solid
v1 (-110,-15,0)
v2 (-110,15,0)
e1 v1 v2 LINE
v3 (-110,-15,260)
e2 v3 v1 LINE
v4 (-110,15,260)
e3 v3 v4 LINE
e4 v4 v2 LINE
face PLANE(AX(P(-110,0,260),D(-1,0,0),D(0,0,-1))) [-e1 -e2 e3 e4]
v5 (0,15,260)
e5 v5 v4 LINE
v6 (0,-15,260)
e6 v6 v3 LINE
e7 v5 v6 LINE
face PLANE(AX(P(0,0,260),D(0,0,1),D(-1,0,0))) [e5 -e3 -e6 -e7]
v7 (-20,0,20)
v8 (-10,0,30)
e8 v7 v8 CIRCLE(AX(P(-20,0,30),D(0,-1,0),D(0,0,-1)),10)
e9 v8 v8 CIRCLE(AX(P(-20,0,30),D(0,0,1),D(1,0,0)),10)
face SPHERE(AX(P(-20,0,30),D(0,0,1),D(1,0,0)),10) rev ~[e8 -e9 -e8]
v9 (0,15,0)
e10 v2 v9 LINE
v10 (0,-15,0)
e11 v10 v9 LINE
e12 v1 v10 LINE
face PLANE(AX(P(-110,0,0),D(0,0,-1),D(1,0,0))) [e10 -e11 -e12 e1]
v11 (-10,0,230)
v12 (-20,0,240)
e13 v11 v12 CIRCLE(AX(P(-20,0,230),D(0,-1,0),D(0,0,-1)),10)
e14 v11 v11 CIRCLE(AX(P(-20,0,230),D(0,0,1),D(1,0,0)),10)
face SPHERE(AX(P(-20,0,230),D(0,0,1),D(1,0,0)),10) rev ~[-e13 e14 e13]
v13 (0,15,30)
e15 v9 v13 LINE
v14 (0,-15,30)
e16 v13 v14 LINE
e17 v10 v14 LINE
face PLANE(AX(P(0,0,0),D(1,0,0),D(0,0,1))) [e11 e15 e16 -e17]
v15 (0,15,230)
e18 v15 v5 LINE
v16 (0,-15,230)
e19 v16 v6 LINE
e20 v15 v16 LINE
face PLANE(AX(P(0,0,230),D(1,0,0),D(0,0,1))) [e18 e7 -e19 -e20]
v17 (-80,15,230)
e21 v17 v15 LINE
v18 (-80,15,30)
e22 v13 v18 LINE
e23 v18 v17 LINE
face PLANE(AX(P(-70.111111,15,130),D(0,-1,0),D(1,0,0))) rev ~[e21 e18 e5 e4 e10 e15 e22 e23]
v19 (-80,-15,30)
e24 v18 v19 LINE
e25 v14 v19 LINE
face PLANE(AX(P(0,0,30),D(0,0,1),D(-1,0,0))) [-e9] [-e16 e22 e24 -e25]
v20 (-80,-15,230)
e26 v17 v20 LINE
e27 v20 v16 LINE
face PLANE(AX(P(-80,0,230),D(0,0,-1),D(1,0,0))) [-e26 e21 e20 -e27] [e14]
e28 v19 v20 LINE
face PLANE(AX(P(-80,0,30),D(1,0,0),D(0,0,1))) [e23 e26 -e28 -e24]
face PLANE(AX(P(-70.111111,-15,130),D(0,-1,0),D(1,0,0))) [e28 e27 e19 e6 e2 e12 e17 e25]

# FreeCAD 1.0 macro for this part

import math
import FreeCAD as App
import Part
import Sketcher
from FreeCAD import Vector
Q = App.Units.Quantity


def add_polygon(sketch, points):
    """Adds a closed chain of lines whose ends are joined by coincident constraints."""
    first, n = sketch.GeometryCount, len(points)
    for a, b in zip(points, points[1:] + points[:1]):
        sketch.addGeometry(Part.LineSegment(App.Vector(*a, 0), App.Vector(*b, 0)), False)
    for i in range(n):
        sketch.addConstraint(Sketcher.Constraint("Coincident", first + i, 2, first + (i + 1) % n, 1))

doc = App.newDocument("Part")
params = doc.addObject("Spreadsheet::Sheet", "Params")
for row, (alias, value) in enumerate([
    ("sketch1_width", "80 mm"),
    ("sketch1_width2", "110 mm"),
    ("sketch1_height", "30 mm"),
    ("sketch1_height2", "200 mm"),
    ("pad1_length", "30 mm"),
    ("sketch2_radius", "10 mm"),
    ("sketch2_height", "220 mm"),
    ("groove_angle", "360 deg"),
], start=1):
    params.set(f"A{row}", alias)
    params.set(f"B{row}", "=" + value)
    params.setAlias(f"B{row}", alias)

body = doc.addObject("PartDesign::Body", "Body")

# Sketch on XZ plane
sketch1 = body.newObject("Sketcher::SketchObject", "Sketch")
sketch1.AttachmentSupport = (doc.getObject("XZ_Plane"), [""])
sketch1.MapMode = "FlatFace"
add_polygon(sketch1, [(0, 0), (0, 30), (-80, 30), (-80, 230), (0, 230), (0, 260), (-110, 260), (-110, 0)])  # lines 0-7
sketch1.addConstraint(Sketcher.Constraint("Vertical", 0))
sketch1.addConstraint(Sketcher.Constraint("Horizontal", 1))
sketch1.addConstraint(Sketcher.Constraint("Vertical", 2))
sketch1.addConstraint(Sketcher.Constraint("Horizontal", 3))
sketch1.addConstraint(Sketcher.Constraint("Vertical", 4))
sketch1.addConstraint(Sketcher.Constraint("Horizontal", 5))
sketch1.addConstraint(Sketcher.Constraint("Vertical", 6))
sketch1.addConstraint(Sketcher.Constraint("Horizontal", 7))
sketch1.addConstraint(Sketcher.Constraint("Coincident", 7, 2, -1, 1))
sketch1.addConstraint(Sketcher.Constraint("PointOnObject", 3, 2, -2))
sketch1.addConstraint(Sketcher.Constraint("Equal", 0, 4))
sketch1.addConstraint(Sketcher.Constraint("DistanceX", 1, 2, 1, 1, Q("80 mm")))
sketch1.addConstraint(Sketcher.Constraint("DistanceX", 5, 2, 5, 1, Q("110 mm")))
sketch1.addConstraint(Sketcher.Constraint("DistanceY", 0, 1, 0, 2, Q("30 mm")))
sketch1.addConstraint(Sketcher.Constraint("DistanceY", 2, 1, 2, 2, Q("200 mm")))
sketch1.setExpression("Constraints[19]", "Params.sketch1_width")
sketch1.setExpression("Constraints[20]", "Params.sketch1_width2")
sketch1.setExpression("Constraints[21]", "Params.sketch1_height")
sketch1.setExpression("Constraints[22]", "Params.sketch1_height2")
pad1 = body.newObject("PartDesign::Pad", "Pad")
pad1.Profile = sketch1
pad1.setExpression("Length", "Params.pad1_length")
pad1.Midplane = True

# Sketch on XZ plane
sketch2 = body.newObject("Sketcher::SketchObject", "Sketch001")
sketch2.AttachmentSupport = (doc.getObject("XZ_Plane"), [""])
sketch2.MapMode = "FlatFace"
sketch2.addGeometry(Part.LineSegment(Vector(-20, 40, 0), Vector(-20, 20, 0)), False)
sketch2.addGeometry(Part.ArcOfCircle(Part.Circle(Vector(-20, 30, 0), Vector(0, 0, 1), 10), math.radians(-90), math.radians(90)), False)
sketch2.addGeometry(Part.LineSegment(Vector(-20, 240, 0), Vector(-20, 220, 0)), False)
sketch2.addGeometry(Part.ArcOfCircle(Part.Circle(Vector(-20, 230, 0), Vector(0, 0, 1), 10), math.radians(-90), math.radians(90)), False)
sketch2.addGeometry(Part.LineSegment(Vector(-20, 20, 0), Vector(-20, 240, 0)), True)  # axis
sketch2.addConstraint(Sketcher.Constraint("Coincident", 0, 1, 1, 2))
sketch2.addConstraint(Sketcher.Constraint("Coincident", 1, 1, 0, 2))
sketch2.addConstraint(Sketcher.Constraint("Coincident", 2, 1, 3, 2))
sketch2.addConstraint(Sketcher.Constraint("Coincident", 3, 1, 2, 2))
sketch2.addConstraint(Sketcher.Constraint("Vertical", 0))
sketch2.addConstraint(Sketcher.Constraint("Vertical", 2))
sketch2.addConstraint(Sketcher.Constraint("Vertical", 4))
sketch2.addConstraint(Sketcher.Constraint("Coincident", 4, 1, 1, 1))
sketch2.addConstraint(Sketcher.Constraint("Coincident", 4, 2, 2, 1))
sketch2.addConstraint(Sketcher.Constraint("Equal", 1, 3))
sketch2.addConstraint(Sketcher.Constraint("Vertical", 1, 3, 3, 3))
sketch2.addConstraint(Sketcher.Constraint("Vertical", 3, 3, 0, 1))
sketch2.addConstraint(Sketcher.Constraint("Radius", 1, Q("10 mm")))
sketch2.addConstraint(Sketcher.Constraint("DistanceY", 4, 1, 4, 2, Q("220 mm")))
sketch2.addConstraint(Sketcher.Constraint("DistanceX", 1, 3, -1, 1, Q("20 mm")))
sketch2.addConstraint(Sketcher.Constraint("DistanceY", -1, 1, 1, 3, Q("30 mm")))
sketch2.setExpression("Constraints[12]", "Params.sketch2_radius")
sketch2.setExpression("Constraints[13]", "Params.sketch2_height")
groove = body.newObject("PartDesign::Groove", "Groove")
groove.Profile = sketch2
groove.ReferenceAxis = (sketch2, ["Axis0"])
groove.setExpression("Angle", "Params.groove_angle")

doc.recompute()
